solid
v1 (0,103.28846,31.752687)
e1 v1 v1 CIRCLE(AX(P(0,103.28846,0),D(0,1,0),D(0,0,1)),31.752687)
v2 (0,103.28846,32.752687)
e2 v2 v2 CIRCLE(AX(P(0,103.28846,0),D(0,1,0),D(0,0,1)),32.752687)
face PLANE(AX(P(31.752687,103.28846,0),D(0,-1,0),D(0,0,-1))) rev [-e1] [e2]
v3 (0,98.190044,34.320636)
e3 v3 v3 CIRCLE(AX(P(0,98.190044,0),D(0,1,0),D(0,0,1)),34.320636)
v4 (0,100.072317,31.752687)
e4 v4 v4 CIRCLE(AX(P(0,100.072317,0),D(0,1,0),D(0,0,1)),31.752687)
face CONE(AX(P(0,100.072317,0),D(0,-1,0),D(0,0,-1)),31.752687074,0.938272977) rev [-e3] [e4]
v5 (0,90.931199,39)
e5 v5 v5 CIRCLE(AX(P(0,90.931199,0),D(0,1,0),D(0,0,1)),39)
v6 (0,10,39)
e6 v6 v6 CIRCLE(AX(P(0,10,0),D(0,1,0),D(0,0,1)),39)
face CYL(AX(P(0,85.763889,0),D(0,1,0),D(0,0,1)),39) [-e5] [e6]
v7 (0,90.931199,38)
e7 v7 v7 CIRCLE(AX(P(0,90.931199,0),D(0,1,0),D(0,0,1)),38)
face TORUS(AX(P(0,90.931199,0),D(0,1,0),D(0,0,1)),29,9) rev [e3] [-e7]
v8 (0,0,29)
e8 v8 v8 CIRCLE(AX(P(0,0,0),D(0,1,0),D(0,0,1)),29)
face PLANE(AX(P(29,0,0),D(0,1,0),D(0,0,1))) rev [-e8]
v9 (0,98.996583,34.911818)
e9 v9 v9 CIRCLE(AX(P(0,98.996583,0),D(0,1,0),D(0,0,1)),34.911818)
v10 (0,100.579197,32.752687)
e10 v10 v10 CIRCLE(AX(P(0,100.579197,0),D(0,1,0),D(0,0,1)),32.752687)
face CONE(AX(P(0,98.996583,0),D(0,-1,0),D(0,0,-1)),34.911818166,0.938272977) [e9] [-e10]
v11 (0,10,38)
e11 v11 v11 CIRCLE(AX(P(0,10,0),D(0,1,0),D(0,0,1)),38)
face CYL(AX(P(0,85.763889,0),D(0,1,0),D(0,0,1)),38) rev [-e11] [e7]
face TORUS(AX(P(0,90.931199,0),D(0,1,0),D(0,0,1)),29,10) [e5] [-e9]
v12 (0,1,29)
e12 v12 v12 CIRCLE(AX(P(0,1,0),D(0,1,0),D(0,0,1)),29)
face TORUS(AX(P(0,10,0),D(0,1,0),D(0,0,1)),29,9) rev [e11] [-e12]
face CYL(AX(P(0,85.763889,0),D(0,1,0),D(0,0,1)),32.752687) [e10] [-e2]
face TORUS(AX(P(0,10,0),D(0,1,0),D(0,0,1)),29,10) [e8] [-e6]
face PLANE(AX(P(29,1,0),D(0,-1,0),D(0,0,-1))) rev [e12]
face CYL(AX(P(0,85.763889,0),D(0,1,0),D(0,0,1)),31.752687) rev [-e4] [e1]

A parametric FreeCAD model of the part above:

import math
import FreeCAD as App
import Part
import Sketcher
from FreeCAD import Vector
Q = App.Units.Quantity

doc = App.newDocument("Part")
body = doc.addObject("PartDesign::Body", "Body")

# Sketch on XY plane
sketch1 = body.newObject("Sketcher::SketchObject", "Sketch")
sketch1.AttachmentSupport = (doc.getObject("XY_Plane"), [""])
sketch1.MapMode = "FlatFace"
sketch1.addGeometry(Part.LineSegment(Vector(39, 10, 0), Vector(39, 90.931199, 0)), False)
sketch1.addGeometry(Part.ArcOfCircle(Part.Circle(Vector(29, 90.9312, 0), Vector(0, 0, 1), 10), math.radians(0), math.radians(53.759082)), False)
sketch1.addGeometry(Part.LineSegment(Vector(34.911818, 98.996583, 0), Vector(32.752687, 100.579197, 0)), False)
sketch1.addGeometry(Part.LineSegment(Vector(32.752687, 100.579197, 0), Vector(32.752687, 103.28846, 0)), False)
sketch1.addGeometry(Part.LineSegment(Vector(32.752687, 103.28846, 0), Vector(31.752687, 103.28846, 0)), False)
sketch1.addGeometry(Part.LineSegment(Vector(31.752687, 103.28846, 0), Vector(31.752687, 100.072317, 0)), False)
sketch1.addGeometry(Part.LineSegment(Vector(31.752687, 100.072317, 0), Vector(34.320636, 98.190044, 0)), False)
sketch1.addGeometry(Part.ArcOfCircle(Part.Circle(Vector(29, 90.931199, 0), Vector(0, 0, 1), 9), math.radians(0), math.radians(53.759082)), False)
sketch1.addGeometry(Part.LineSegment(Vector(38, 90.931199, 0), Vector(38, 10, 0)), False)
sketch1.addGeometry(Part.ArcOfCircle(Part.Circle(Vector(29, 10, 0), Vector(0, 0, 1), 9), math.radians(-90), math.radians(0)), False)
sketch1.addGeometry(Part.LineSegment(Vector(29, 1, 0), Vector(0, 1, 0)), False)
sketch1.addGeometry(Part.LineSegment(Vector(0, 1, 0), Vector(0, 0, 0)), False)
sketch1.addGeometry(Part.LineSegment(Vector(0, 0, 0), Vector(29, 0, 0)), False)
sketch1.addGeometry(Part.ArcOfCircle(Part.Circle(Vector(29, 10, 0), Vector(0, 0, 1), 10), math.radians(-90), math.radians(0)), False)
sketch1.addConstraint(Sketcher.Constraint("Tangent", 0, 2, 1, 1))
sketch1.addConstraint(Sketcher.Constraint("Tangent", 1, 2, 2, 1))
sketch1.addConstraint(Sketcher.Constraint("Coincident", 2, 2, 3, 1))
sketch1.addConstraint(Sketcher.Constraint("Coincident", 3, 2, 4, 1))
sketch1.addConstraint(Sketcher.Constraint("Coincident", 4, 2, 5, 1))
sketch1.addConstraint(Sketcher.Constraint("Coincident", 5, 2, 6, 1))
sketch1.addConstraint(Sketcher.Constraint("Tangent", 6, 2, 7, 2))
sketch1.addConstraint(Sketcher.Constraint("Tangent", 7, 1, 8, 1))
sketch1.addConstraint(Sketcher.Constraint("Tangent", 8, 2, 9, 2))
sketch1.addConstraint(Sketcher.Constraint("Tangent", 9, 1, 10, 1))
sketch1.addConstraint(Sketcher.Constraint("Coincident", 10, 2, 11, 1))
sketch1.addConstraint(Sketcher.Constraint("Coincident", 11, 2, 12, 1))
sketch1.addConstraint(Sketcher.Constraint("Tangent", 12, 2, 13, 1))
sketch1.addConstraint(Sketcher.Constraint("Tangent", 13, 2, 0, 1))
sketch1.addConstraint(Sketcher.Constraint("Vertical", 0))
sketch1.addConstraint(Sketcher.Constraint("Vertical", 3))
sketch1.addConstraint(Sketcher.Constraint("Horizontal", 4))
sketch1.addConstraint(Sketcher.Constraint("Vertical", 5))
sketch1.addConstraint(Sketcher.Constraint("Vertical", 8))
sketch1.addConstraint(Sketcher.Constraint("Horizontal", 10))
sketch1.addConstraint(Sketcher.Constraint("Vertical", 11))
sketch1.addConstraint(Sketcher.Constraint("Horizontal", 12))
sketch1.addConstraint(Sketcher.Constraint("Coincident", 11, 2, -1, 1))
sketch1.addConstraint(Sketcher.Constraint("Coincident", 7, 3, 1, 3))
sketch1.addConstraint(Sketcher.Constraint("Coincident", 13, 3, 9, 3))
sketch1.addConstraint(Sketcher.Constraint("Equal", 7, 9))
sketch1.addConstraint(Sketcher.Constraint("Parallel", 2, 6))
sketch1.addConstraint(Sketcher.Constraint("Equal", 4, 11))
sketch1.addConstraint(Sketcher.Constraint("Radius", 1, Q("10 mm")))
sketch1.addConstraint(Sketcher.Constraint("Radius", 7, Q("9 mm")))
sketch1.addConstraint(Sketcher.Constraint("DistanceX", 10, 2, 10, 1, Q("29 mm")))
sketch1.addConstraint(Sketcher.Constraint("DistanceY", 0, 1, 0, 2, Q("80.931199 mm")))
sketch1.addConstraint(Sketcher.Constraint("DistanceY", 3, 1, 3, 2, Q("2.709263 mm")))
sketch1.addConstraint(Sketcher.Constraint("DistanceY", 5, 2, 5, 1, Q("3.216143 mm")))
sketch1.addConstraint(Sketcher.Constraint("DistanceY", -1, 1, 3, 2, Q("103.28846 mm")))
revolution = body.newObject("PartDesign::Revolution", "Revolution")
revolution.Profile = sketch1
revolution.ReferenceAxis = (sketch1, ["V_Axis"])
revolution.Angle = 360

doc.recompute()
